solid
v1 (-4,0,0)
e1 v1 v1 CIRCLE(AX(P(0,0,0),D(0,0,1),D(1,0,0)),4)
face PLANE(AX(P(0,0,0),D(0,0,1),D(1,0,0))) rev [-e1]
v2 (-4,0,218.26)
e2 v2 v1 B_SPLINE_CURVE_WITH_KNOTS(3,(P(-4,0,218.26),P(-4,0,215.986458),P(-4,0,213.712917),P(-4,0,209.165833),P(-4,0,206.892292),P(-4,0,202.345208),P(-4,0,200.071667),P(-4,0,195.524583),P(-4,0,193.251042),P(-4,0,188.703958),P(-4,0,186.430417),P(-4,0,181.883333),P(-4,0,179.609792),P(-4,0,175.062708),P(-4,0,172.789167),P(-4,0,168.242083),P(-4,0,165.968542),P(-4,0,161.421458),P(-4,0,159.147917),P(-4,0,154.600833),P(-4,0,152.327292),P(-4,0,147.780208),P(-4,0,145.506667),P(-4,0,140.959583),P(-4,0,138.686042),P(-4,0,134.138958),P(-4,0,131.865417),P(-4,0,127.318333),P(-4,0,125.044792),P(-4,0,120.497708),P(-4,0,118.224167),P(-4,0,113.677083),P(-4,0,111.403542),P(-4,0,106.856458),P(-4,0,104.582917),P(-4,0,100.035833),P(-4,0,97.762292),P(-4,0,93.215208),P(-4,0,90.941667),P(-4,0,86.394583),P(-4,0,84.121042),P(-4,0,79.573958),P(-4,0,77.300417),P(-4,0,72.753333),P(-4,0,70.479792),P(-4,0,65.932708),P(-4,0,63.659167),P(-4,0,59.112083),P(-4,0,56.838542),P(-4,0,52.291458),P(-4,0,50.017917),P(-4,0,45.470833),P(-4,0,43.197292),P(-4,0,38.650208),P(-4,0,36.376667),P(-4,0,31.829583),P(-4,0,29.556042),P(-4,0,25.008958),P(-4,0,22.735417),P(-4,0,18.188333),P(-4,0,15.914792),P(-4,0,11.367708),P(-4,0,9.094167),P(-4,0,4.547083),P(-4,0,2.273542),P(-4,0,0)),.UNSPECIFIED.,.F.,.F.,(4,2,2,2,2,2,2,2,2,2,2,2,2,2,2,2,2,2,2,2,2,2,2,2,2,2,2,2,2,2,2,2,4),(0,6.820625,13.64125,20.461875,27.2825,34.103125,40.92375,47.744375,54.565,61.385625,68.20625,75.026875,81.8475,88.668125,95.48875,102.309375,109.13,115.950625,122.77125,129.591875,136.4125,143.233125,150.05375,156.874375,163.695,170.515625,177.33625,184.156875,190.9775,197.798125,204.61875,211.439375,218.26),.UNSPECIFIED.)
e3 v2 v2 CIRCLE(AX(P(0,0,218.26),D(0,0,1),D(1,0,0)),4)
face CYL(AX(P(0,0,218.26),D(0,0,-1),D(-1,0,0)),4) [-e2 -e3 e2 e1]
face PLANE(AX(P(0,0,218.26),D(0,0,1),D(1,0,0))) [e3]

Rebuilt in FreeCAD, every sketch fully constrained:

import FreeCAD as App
import Part
import Sketcher

V = App.Vector
Q = App.Units.Quantity

doc = App.newDocument("Part")
body = doc.addObject("PartDesign::Body", "Body")

# Sketch on XY plane
sketch1 = body.newObject("Sketcher::SketchObject", "Sketch")
sketch1.AttachmentSupport = (doc.getObject("XY_Plane"), [""])
sketch1.MapMode = "FlatFace"
sketch1.addGeometry(Part.Circle(V(0, 0, 0), V(0, 0, 1), 4), False)
sketch1.addConstraint([
    Sketcher.Constraint("Coincident", 0, 3, -1, 1),
    Sketcher.Constraint("Diameter", 0, Q("8 mm")),
])
pad1 = body.newObject("PartDesign::Pad", "Pad")
pad1.Profile = sketch1
pad1.Length = 218.26

doc.recompute()
